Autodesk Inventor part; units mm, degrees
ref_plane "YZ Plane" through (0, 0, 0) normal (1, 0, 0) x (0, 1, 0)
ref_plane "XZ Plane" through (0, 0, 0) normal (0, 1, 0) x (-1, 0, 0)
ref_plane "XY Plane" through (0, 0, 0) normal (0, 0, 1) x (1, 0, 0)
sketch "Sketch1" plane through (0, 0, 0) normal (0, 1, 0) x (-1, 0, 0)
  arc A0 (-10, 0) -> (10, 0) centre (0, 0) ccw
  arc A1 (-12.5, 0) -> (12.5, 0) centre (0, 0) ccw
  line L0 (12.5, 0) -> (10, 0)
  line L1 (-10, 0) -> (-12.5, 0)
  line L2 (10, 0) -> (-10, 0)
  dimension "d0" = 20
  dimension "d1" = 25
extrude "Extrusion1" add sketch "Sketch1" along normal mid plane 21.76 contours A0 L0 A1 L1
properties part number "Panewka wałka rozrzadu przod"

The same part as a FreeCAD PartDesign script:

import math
import FreeCAD as App
import Part
import Sketcher
from FreeCAD import Vector

doc = App.newDocument("Part")
body = doc.addObject("PartDesign::Body", "Body")

# Sketch on XZ plane
sketch1 = doc.addObject("Sketcher::SketchObject", "Sketch")
body.addObject(sketch1)
sketch1.AttachmentSupport = (doc.XZ_Plane, [""])
sketch1.MapMode = "FlatFace"
sketch1.addGeometry([
    Part.ArcOfCircle(Part.Circle(Vector(0, 0, 0), Vector(0, 0, 1), 10), math.radians(180), math.radians(360)),
    Part.LineSegment(Vector(10, 0, 0), Vector(12.5, 0, 0)),
    Part.ArcOfCircle(Part.Circle(Vector(0, 0, 0), Vector(0, 0, 1), 12.5), math.radians(180), math.radians(360)),
    Part.LineSegment(Vector(-12.5, 0, 0), Vector(-10, 0, 0)),
], False)
sketch1.addConstraint([
    Sketcher.Constraint("Coincident", 0, 2, 1, 1),
    Sketcher.Constraint("Coincident", 1, 2, 2, 2),
    Sketcher.Constraint("Coincident", 2, 1, 3, 1),
    Sketcher.Constraint("Coincident", 3, 2, 0, 1),
    Sketcher.Constraint("Horizontal", 1),
    Sketcher.Constraint("Horizontal", 3),
    Sketcher.Constraint("Coincident", 0, 3, -1, 1),
    Sketcher.Constraint("Coincident", 2, 3, -1, 1),
    Sketcher.Constraint("PointOnObject", 0, 2, -1),
    Sketcher.Constraint("PointOnObject", 2, 1, -1),
    Sketcher.Constraint("Radius", 0, 10.0),
    Sketcher.Constraint("Radius", 2, 12.5),
])
pad1 = doc.addObject("PartDesign::Pad", "Pad")
body.addObject(pad1)
pad1.Profile = sketch1
pad1.Length = 21.76
pad1.Midplane = True

doc.recompute()
